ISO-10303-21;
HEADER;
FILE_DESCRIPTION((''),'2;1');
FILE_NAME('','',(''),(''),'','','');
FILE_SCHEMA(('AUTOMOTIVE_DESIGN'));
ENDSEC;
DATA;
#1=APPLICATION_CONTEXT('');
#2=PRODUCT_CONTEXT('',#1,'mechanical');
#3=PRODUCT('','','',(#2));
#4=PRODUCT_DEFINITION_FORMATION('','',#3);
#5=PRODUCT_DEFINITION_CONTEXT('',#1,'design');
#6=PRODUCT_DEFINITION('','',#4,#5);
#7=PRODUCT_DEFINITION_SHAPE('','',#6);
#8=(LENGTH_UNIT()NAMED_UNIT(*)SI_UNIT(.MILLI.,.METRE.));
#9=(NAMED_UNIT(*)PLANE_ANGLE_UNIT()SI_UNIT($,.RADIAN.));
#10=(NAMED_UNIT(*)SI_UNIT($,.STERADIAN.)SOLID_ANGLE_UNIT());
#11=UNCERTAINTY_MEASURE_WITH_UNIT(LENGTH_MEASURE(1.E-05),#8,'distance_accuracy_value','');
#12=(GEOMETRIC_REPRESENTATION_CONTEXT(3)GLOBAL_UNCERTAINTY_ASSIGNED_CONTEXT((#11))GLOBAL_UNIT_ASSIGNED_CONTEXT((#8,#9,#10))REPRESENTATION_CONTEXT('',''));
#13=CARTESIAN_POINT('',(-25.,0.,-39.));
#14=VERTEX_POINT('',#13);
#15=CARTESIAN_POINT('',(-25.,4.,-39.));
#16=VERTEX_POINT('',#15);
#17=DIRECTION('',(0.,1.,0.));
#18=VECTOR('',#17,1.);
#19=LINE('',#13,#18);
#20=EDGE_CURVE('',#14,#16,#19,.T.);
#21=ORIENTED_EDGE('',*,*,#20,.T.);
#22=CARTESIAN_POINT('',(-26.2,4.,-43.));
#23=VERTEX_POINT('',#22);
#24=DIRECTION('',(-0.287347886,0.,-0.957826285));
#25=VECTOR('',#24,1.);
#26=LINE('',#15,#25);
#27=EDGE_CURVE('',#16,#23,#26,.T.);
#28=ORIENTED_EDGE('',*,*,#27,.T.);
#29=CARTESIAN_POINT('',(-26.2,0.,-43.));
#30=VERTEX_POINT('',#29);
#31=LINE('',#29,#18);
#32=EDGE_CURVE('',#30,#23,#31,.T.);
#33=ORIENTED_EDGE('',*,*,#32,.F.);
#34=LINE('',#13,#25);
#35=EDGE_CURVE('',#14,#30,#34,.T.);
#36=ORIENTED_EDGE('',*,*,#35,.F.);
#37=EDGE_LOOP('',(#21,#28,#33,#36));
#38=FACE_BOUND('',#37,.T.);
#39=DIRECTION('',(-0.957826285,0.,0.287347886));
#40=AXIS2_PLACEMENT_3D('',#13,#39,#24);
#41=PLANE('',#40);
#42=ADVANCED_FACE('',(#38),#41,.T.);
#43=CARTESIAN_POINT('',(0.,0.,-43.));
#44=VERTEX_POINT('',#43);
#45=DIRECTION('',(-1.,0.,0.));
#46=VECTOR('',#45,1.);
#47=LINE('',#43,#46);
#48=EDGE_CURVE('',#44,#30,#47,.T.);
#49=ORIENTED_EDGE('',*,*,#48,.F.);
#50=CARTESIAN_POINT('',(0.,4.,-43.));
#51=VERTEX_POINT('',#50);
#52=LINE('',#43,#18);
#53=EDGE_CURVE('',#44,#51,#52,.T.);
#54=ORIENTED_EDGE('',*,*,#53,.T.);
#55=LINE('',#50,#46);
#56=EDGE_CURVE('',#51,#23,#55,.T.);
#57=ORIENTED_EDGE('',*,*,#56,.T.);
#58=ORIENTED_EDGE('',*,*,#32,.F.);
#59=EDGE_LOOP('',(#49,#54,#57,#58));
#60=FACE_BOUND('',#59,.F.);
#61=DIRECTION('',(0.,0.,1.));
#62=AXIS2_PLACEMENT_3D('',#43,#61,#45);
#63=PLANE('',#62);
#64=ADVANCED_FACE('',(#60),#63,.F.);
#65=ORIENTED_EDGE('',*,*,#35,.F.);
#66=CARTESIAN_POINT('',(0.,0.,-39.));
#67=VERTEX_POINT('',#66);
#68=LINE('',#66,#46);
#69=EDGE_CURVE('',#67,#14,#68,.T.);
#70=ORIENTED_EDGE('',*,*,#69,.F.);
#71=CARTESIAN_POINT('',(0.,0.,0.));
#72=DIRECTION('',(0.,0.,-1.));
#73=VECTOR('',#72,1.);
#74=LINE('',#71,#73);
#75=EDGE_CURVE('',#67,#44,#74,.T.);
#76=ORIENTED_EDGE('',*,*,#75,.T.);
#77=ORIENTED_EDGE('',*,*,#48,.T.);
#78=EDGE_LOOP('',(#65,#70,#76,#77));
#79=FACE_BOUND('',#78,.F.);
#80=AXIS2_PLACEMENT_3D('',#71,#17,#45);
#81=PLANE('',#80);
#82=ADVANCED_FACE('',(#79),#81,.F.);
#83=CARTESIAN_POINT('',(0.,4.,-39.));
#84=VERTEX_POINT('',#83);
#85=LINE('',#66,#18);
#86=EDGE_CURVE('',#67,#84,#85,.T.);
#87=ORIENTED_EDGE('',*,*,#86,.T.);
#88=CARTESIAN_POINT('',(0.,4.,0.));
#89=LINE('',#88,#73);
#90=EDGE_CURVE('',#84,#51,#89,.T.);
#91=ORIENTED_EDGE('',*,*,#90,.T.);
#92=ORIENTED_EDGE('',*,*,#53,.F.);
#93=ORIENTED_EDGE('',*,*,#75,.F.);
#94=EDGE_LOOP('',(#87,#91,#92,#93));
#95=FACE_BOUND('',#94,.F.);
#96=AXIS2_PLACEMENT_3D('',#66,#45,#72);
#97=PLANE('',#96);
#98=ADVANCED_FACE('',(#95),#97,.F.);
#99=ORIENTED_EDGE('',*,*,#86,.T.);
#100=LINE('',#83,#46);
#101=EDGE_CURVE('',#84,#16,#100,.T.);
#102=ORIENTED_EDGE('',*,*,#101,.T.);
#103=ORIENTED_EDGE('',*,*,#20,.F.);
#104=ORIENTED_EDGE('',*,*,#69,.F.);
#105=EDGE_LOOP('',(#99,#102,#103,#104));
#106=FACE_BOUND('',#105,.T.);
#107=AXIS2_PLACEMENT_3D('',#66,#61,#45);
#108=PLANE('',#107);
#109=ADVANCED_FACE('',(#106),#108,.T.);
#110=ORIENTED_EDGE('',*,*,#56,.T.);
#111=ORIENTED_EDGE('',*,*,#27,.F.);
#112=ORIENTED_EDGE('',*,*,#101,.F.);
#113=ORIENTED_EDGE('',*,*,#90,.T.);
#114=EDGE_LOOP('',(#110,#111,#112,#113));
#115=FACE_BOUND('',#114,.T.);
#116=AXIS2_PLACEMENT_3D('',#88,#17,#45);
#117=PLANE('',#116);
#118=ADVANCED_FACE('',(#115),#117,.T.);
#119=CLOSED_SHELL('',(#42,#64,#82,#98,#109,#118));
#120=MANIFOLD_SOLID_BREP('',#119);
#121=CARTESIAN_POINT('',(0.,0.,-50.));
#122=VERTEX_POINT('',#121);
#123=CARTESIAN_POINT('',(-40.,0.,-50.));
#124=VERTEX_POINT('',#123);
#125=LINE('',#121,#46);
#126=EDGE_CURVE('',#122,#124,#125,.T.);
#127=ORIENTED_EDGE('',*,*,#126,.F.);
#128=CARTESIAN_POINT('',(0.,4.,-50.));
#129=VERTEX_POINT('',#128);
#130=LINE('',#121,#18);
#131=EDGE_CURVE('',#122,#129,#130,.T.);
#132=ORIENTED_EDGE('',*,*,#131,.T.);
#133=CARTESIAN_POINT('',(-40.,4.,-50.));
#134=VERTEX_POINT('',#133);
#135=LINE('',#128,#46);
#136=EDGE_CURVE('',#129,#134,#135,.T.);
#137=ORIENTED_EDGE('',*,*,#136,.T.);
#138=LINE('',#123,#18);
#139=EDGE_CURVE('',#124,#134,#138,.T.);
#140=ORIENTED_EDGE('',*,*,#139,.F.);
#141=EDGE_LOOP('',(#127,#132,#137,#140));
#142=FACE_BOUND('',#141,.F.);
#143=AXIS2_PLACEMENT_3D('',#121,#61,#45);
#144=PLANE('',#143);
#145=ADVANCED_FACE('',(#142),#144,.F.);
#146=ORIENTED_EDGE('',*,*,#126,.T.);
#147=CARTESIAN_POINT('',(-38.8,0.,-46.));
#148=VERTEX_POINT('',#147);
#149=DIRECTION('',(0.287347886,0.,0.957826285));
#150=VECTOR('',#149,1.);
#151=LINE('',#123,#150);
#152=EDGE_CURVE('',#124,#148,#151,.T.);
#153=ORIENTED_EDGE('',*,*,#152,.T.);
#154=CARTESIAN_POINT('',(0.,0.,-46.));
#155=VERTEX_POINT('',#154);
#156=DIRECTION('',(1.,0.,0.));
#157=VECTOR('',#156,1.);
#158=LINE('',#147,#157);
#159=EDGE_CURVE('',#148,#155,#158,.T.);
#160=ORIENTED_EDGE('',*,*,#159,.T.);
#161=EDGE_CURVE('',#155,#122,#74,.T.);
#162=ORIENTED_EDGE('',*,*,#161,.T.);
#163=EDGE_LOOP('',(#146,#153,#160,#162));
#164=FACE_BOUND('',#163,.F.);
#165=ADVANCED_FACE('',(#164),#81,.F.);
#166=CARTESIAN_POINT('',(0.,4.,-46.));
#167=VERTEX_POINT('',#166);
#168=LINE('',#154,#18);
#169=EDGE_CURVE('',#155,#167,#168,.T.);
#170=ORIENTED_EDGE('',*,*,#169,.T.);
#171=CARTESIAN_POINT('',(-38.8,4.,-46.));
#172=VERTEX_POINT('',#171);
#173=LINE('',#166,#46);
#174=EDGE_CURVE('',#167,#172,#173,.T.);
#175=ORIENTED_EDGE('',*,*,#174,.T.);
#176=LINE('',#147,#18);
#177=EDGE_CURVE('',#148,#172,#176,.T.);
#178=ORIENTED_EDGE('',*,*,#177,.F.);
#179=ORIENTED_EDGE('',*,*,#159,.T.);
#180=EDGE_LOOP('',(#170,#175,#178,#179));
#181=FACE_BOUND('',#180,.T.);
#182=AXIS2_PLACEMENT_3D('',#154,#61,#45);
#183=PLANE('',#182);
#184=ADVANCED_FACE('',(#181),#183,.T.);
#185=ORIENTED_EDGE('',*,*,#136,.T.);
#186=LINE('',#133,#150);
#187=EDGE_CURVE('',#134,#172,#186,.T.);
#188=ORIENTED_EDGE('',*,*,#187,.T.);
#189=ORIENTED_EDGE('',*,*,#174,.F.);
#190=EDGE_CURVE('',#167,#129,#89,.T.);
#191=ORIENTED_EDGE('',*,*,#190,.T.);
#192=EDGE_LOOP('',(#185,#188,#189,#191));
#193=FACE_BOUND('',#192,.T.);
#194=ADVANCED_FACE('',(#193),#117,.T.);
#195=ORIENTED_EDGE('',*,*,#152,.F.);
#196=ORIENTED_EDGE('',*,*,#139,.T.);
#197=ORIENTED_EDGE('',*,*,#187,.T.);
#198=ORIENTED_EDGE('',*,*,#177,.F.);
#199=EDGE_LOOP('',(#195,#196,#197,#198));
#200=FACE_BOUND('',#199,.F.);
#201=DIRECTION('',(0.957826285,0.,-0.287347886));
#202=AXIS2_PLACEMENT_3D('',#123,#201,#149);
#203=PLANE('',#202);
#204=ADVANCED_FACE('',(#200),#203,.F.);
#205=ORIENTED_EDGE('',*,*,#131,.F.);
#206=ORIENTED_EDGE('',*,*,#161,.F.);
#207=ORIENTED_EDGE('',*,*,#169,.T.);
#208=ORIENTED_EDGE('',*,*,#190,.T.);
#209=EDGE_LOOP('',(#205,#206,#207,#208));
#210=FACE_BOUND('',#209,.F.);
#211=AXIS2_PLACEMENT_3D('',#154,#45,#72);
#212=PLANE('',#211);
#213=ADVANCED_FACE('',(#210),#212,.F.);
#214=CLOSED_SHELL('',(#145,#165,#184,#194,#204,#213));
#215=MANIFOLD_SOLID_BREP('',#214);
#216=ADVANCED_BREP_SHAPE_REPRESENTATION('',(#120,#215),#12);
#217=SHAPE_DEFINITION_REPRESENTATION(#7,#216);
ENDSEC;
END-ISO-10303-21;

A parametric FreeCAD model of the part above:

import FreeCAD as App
import Part
import Sketcher
from FreeCAD import Vector
Q = App.Units.Quantity


def add_polygon(sketch, points):
    """Adds a closed chain of lines whose ends are joined by coincident constraints."""
    first, n = sketch.GeometryCount, len(points)
    for a, b in zip(points, points[1:] + points[:1]):
        sketch.addGeometry(Part.LineSegment(App.Vector(*a, 0), App.Vector(*b, 0)), False)
    for i in range(n):
        sketch.addConstraint(Sketcher.Constraint("Coincident", first + i, 2, first + (i + 1) % n, 1))

doc = App.newDocument("Part")
body = doc.addObject("PartDesign::Body", "Body")
body.AllowCompound = True

# Sketch on XZ plane
sketch1 = body.newObject("Sketcher::SketchObject", "Sketch")
sketch1.AttachmentSupport = (doc.getObject("XZ_Plane"), [""])
sketch1.MapMode = "FlatFace"
add_polygon(sketch1, [(-25, -39), (0, -39), (0, -43), (-26.2, -43)])  # lines 0-3
add_polygon(sketch1, [(-40, -50), (-38.8, -46), (0, -46), (0, -50)])  # lines 4-7
sketch1.addConstraint(Sketcher.Constraint("Horizontal", 0))
sketch1.addConstraint(Sketcher.Constraint("Vertical", 1))
sketch1.addConstraint(Sketcher.Constraint("Horizontal", 2))
sketch1.addConstraint(Sketcher.Constraint("Horizontal", 5))
sketch1.addConstraint(Sketcher.Constraint("Vertical", 6))
sketch1.addConstraint(Sketcher.Constraint("Horizontal", 7))
sketch1.addConstraint(Sketcher.Constraint("PointOnObject", 0, 2, -2))
sketch1.addConstraint(Sketcher.Constraint("PointOnObject", 5, 2, -2))
sketch1.addConstraint(Sketcher.Constraint("Parallel", 3, 4))
sketch1.addConstraint(Sketcher.Constraint("Equal", 1, 6))
sketch1.addConstraint(Sketcher.Constraint("DistanceX", 0, 1, 0, 2, Q("25 mm")))
sketch1.addConstraint(Sketcher.Constraint("DistanceX", 7, 2, 7, 1, Q("40 mm")))
sketch1.addConstraint(Sketcher.Constraint("DistanceY", 1, 2, 1, 1, Q("4 mm")))
sketch1.addConstraint(Sketcher.Constraint("DistanceY", 6, 2, -1, 1, Q("50 mm")))
sketch1.addConstraint(Sketcher.Constraint("DistanceY", 4, 2, 2, 2, Q("3 mm")))
sketch1.addConstraint(Sketcher.Constraint("DistanceX", 2, 2, 2, 1, Q("26.2 mm")))
pad1 = body.newObject("PartDesign::Pad", "Pad")
pad1.Profile = sketch1
pad1.Length = 4
pad1.Reversed = True

doc.recompute()
